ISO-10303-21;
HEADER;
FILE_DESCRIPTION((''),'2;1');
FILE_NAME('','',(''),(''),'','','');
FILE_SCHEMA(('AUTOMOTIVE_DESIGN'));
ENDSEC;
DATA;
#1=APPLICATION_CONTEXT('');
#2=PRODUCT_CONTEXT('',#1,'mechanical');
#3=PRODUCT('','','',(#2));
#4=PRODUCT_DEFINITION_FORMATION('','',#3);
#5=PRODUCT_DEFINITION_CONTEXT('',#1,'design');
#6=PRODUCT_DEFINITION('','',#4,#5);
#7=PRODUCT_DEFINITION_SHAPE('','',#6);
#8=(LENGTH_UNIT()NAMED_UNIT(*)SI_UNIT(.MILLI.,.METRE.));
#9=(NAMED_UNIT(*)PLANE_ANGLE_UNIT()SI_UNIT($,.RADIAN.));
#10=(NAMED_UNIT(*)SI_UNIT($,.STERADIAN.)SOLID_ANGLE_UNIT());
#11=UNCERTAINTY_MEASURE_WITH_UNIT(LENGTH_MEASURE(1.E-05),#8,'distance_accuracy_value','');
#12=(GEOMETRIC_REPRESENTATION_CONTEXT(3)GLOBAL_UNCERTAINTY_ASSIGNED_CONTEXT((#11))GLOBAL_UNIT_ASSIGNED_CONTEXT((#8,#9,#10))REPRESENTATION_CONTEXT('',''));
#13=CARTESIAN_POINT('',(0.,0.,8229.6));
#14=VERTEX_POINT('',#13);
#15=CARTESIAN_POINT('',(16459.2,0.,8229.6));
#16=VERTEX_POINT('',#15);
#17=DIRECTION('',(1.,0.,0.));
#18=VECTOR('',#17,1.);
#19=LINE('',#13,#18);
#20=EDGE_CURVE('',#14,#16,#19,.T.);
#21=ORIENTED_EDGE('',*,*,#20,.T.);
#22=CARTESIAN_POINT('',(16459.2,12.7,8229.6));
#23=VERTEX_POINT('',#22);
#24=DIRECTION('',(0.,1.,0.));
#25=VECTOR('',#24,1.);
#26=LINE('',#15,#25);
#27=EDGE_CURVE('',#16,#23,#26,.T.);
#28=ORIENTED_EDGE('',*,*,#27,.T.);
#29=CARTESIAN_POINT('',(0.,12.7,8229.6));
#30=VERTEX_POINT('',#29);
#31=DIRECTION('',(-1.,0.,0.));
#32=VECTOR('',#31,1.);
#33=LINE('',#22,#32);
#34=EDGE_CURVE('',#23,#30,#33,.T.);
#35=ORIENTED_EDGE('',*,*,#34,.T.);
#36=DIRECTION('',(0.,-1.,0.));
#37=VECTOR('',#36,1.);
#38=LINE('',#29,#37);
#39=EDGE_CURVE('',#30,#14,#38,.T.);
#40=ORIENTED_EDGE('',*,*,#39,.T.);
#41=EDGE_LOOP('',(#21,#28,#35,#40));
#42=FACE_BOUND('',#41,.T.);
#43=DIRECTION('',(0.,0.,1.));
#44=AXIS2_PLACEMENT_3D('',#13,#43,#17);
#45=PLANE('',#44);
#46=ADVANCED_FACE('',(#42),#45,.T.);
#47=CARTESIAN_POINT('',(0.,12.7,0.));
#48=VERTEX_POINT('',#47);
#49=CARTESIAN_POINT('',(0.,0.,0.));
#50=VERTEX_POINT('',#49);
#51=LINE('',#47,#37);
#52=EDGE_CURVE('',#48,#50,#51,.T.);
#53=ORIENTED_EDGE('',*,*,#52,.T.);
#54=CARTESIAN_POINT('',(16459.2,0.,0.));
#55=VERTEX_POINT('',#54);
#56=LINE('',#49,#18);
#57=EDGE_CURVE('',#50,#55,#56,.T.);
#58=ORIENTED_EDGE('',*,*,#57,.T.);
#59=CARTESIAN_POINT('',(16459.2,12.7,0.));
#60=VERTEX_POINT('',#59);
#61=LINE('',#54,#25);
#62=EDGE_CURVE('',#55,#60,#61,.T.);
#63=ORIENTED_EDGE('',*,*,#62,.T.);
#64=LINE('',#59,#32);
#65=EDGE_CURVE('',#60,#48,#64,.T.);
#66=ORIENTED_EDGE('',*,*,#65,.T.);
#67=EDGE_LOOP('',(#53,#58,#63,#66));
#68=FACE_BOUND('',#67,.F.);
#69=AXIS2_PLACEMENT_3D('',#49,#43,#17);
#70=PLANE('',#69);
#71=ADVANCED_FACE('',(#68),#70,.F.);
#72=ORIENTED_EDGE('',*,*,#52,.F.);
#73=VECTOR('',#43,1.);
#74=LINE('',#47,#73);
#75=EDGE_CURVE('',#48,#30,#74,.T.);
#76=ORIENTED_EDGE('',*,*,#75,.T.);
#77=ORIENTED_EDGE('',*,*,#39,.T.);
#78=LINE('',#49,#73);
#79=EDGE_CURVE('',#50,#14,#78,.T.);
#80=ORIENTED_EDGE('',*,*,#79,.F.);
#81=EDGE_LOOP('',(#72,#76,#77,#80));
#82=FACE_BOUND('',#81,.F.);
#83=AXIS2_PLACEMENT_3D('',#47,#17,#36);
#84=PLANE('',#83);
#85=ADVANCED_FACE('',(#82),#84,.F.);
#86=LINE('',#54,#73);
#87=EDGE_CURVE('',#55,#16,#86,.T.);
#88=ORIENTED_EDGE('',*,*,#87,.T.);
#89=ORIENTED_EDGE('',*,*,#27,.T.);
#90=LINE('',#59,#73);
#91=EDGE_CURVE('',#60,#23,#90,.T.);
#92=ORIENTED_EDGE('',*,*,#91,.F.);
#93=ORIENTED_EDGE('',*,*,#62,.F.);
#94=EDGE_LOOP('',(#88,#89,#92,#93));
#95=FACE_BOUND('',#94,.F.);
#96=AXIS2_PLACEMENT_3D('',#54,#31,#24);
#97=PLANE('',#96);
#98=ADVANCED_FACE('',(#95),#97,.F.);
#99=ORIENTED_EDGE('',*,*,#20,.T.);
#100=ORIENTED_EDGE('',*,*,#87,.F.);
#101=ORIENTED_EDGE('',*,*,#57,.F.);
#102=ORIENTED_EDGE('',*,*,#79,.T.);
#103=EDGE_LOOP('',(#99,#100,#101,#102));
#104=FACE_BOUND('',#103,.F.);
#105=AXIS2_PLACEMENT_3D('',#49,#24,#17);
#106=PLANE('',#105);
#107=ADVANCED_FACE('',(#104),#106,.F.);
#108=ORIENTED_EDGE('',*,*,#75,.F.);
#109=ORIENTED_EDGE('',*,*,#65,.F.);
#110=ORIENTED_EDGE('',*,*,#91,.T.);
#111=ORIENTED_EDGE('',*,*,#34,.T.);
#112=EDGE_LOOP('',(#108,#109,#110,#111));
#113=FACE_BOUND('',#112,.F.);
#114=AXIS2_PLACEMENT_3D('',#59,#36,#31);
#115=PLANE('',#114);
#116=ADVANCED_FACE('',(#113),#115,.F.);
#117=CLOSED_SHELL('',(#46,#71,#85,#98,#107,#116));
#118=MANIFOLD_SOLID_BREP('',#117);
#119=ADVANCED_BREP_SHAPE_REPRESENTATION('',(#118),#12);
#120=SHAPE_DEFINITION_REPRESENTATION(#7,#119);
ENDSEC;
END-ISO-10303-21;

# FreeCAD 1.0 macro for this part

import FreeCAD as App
import Part
import Sketcher
Q = App.Units.Quantity

doc = App.newDocument("Part")
body = doc.addObject("PartDesign::Body", "Body")

# Sketch on XY plane
sketch1 = body.newObject("Sketcher::SketchObject", "Sketch")
sketch1.AttachmentSupport = (doc.getObject("XY_Plane"), [""])
sketch1.MapMode = "FlatFace"
sketch1.addGeometry(Part.LineSegment(App.Vector(0, 13, 0), App.Vector(0, 0, 0)), False)
sketch1.addGeometry(Part.LineSegment(App.Vector(0, 0, 0), App.Vector(16459, 0, 0)), False)
sketch1.addGeometry(Part.LineSegment(App.Vector(16459, 0, 0), App.Vector(16459, 13, 0)), False)
sketch1.addGeometry(Part.LineSegment(App.Vector(16459, 13, 0), App.Vector(0, 13, 0)), False)
sketch1.addConstraint(Sketcher.Constraint("Coincident", 0, 2, 1, 1))
sketch1.addConstraint(Sketcher.Constraint("Coincident", 1, 2, 2, 1))
sketch1.addConstraint(Sketcher.Constraint("Coincident", 2, 2, 3, 1))
sketch1.addConstraint(Sketcher.Constraint("Coincident", 3, 2, 0, 1))
sketch1.addConstraint(Sketcher.Constraint("Vertical", 0))
sketch1.addConstraint(Sketcher.Constraint("Horizontal", 1))
sketch1.addConstraint(Sketcher.Constraint("Vertical", 2))
sketch1.addConstraint(Sketcher.Constraint("Horizontal", 3))
sketch1.addConstraint(Sketcher.Constraint("Coincident", 0, 2, -1, 1))
sketch1.addConstraint(Sketcher.Constraint("DistanceX", 1, 1, 1, 2, Q("648 in")))
sketch1.addConstraint(Sketcher.Constraint("DistanceY", 0, 2, 0, 1, Q("0.5 in")))
pad1 = body.newObject("PartDesign::Pad", "Pad")
pad1.Profile = sketch1
pad1.Length = Q("324 in")

doc.recompute()
